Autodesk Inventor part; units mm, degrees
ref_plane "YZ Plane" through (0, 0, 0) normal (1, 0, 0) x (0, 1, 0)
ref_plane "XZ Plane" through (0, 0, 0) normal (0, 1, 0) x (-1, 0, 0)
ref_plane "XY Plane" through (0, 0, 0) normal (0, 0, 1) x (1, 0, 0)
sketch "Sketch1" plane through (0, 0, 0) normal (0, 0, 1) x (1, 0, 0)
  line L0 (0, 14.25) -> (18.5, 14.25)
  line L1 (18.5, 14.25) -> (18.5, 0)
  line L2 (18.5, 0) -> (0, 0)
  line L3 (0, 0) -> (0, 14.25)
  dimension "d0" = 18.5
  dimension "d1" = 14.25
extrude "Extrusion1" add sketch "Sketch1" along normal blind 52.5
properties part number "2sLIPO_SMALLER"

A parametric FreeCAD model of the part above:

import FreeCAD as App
import Part
import Sketcher
Q = App.Units.Quantity

doc = App.newDocument("Part")
body = doc.addObject("PartDesign::Body", "Body")

# Sketch on XY plane
sketch1 = body.newObject("Sketcher::SketchObject", "Sketch")
sketch1.AttachmentSupport = (doc.getObject("XY_Plane"), [""])
sketch1.MapMode = "FlatFace"
sketch1.addGeometry([
    Part.LineSegment(App.Vector(18, 14, 0), App.Vector(0, 14, 0)),
    Part.LineSegment(App.Vector(0, 14, 0), App.Vector(0, 0, 0)),
    Part.LineSegment(App.Vector(0, 0, 0), App.Vector(18, 0, 0)),
    Part.LineSegment(App.Vector(18, 0, 0), App.Vector(18, 14, 0)),
], False)
sketch1.addConstraint([
    Sketcher.Constraint("Coincident", 0, 2, 1, 1),
    Sketcher.Constraint("Coincident", 1, 2, 2, 1),
    Sketcher.Constraint("Coincident", 2, 2, 3, 1),
    Sketcher.Constraint("Coincident", 3, 2, 0, 1),
    Sketcher.Constraint("Horizontal", 0),
    Sketcher.Constraint("Vertical", 1),
    Sketcher.Constraint("Horizontal", 2),
    Sketcher.Constraint("Vertical", 3),
    Sketcher.Constraint("Coincident", 1, 2, -1, 1),
    Sketcher.Constraint("DistanceX", 0, 2, 0, 1, Q("18.5 mm")),
    Sketcher.Constraint("DistanceY", 1, 2, 1, 1, Q("14.25 mm")),
])
pad1 = body.newObject("PartDesign::Pad", "Pad")
pad1.Profile = sketch1
pad1.Length = 52.5

doc.recompute()
